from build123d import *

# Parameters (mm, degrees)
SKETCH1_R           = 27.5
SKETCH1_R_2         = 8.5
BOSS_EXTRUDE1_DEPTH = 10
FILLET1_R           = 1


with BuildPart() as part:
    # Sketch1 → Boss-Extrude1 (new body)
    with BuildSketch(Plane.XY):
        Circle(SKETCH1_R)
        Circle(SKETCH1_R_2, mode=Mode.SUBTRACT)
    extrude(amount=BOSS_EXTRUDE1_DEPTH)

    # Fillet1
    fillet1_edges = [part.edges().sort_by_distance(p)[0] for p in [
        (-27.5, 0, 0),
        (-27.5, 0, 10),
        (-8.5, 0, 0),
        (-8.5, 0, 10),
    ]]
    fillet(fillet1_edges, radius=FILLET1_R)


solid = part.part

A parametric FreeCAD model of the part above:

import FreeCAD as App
import Part
import Sketcher
Q = App.Units.Quantity


def edges_at(feature, points):
    """Names of the edges that pass closest to the given points."""
    edges = feature.Shape.Edges
    near = lambda p: min(range(len(edges)), key=lambda i: edges[i].distToShape(Part.Vertex(*p))[0])
    return sorted({f"Edge{near(p) + 1}" for p in points})

doc = App.newDocument("Part")
body = doc.addObject("PartDesign::Body", "Body")

# Sketch on XY plane
sketch1 = body.newObject("Sketcher::SketchObject", "Sketch")
sketch1.AttachmentSupport = (doc.getObject("XY_Plane"), [""])
sketch1.MapMode = "FlatFace"
sketch1.addGeometry(Part.Circle(App.Vector(0, 0, 0), App.Vector(0, 0, 1), 28), False)
sketch1.addGeometry(Part.Circle(App.Vector(0, 0, 0), App.Vector(0, 0, 1), 8), False)
sketch1.addConstraint(Sketcher.Constraint("Coincident", 0, 3, -1, 1))
sketch1.addConstraint(Sketcher.Constraint("Coincident", 1, 3, -1, 1))
sketch1.addConstraint(Sketcher.Constraint("Diameter", 0, Q("55 mm")))
sketch1.addConstraint(Sketcher.Constraint("Diameter", 1, Q("17 mm")))
pad1 = body.newObject("PartDesign::Pad", "Pad")
pad1.Profile = sketch1
pad1.Length = 10
doc.recompute()

fillet = body.newObject("PartDesign::Fillet", "Fillet")
fillet.Base = (pad1, edges_at(pad1, [
    (-27.5, 0, 0),
    (-27.5, 0, 10),
    (-8.5, 0, 0),
    (-8.5, 0, 10),
]))
fillet.Radius = 1

doc.recompute()
